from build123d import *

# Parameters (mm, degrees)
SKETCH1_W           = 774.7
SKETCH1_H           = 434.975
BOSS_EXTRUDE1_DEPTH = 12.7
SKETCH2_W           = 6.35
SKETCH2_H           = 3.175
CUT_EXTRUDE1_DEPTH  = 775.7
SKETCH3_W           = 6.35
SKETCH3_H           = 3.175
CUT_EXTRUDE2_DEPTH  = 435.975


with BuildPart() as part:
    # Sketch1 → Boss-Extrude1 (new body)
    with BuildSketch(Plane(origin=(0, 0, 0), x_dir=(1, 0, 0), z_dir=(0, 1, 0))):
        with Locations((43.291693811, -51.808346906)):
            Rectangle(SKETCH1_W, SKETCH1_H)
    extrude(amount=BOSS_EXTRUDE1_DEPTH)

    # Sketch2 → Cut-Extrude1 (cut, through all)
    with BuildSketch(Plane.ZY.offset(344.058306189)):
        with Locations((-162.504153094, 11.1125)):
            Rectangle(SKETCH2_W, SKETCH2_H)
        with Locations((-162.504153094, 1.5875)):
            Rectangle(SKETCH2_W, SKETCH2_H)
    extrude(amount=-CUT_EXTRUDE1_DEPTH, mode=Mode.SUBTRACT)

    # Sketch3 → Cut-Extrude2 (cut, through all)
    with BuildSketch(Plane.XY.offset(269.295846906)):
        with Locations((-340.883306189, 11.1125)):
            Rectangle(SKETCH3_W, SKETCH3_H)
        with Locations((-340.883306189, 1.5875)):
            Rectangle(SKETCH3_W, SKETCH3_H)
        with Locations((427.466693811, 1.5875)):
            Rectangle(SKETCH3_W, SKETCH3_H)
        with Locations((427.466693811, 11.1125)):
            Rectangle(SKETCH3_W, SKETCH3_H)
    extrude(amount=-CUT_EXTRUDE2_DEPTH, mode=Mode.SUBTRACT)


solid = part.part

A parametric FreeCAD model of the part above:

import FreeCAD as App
import Part
import Sketcher

V = App.Vector
Q = App.Units.Quantity

doc = App.newDocument("Part")
body = doc.addObject("PartDesign::Body", "Body")

# Sketch on XZ plane
sketch1 = doc.addObject("Sketcher::SketchObject", "Sketch")
body.addObject(sketch1)
sketch1.AttachmentSupport = (doc.XZ_Plane, [""])
sketch1.MapMode = "FlatFace"
sketch1.addGeometry([
    Part.LineSegment(V(-344, -166, 0), V(-344, 269, 0)),
    Part.LineSegment(V(-344, 269, 0), V(431, 269, 0)),
    Part.LineSegment(V(431, 269, 0), V(431, -166, 0)),
    Part.LineSegment(V(431, -166, 0), V(-344, -166, 0)),
], False)
sketch1.addConstraint([
    Sketcher.Constraint("Coincident", 0, 2, 1, 1),
    Sketcher.Constraint("Coincident", 1, 2, 2, 1),
    Sketcher.Constraint("Coincident", 2, 2, 3, 1),
    Sketcher.Constraint("Coincident", 3, 2, 0, 1),
    Sketcher.Constraint("Vertical", 0),
    Sketcher.Constraint("Horizontal", 1),
    Sketcher.Constraint("Vertical", 2),
    Sketcher.Constraint("Horizontal", 3),
    Sketcher.Constraint("DistanceX", 1, 1, 1, 2, Q("30.5 in")),
    Sketcher.Constraint("DistanceY", 0, 1, 0, 2, Q("17.125 in")),
    Sketcher.Constraint("DistanceX", 0, 2, -1, 1, 344.058306),
    Sketcher.Constraint("DistanceY", -1, 1, 0, 2, 269.295847),
])
pad1 = doc.addObject("PartDesign::Pad", "Pad")
body.addObject(pad1)
pad1.Profile = sketch1
pad1.Length = Q("0.5 in")
pad1.Reversed = True

# Sketch on YZ plane
sketch2 = doc.addObject("Sketcher::SketchObject", "Sketch001")
body.addObject(sketch2)
sketch2.AttachmentSupport = (doc.YZ_Plane, [""])
sketch2.MapMode = "FlatFace"
sketch2.AttachmentOffset = App.Placement(V(0, 0, -344.058306), App.Rotation())
sketch2.addGeometry([
    Part.LineSegment(V(12.7, -165.7, 0), V(9.5, -165.7, 0)),  # 0
    Part.LineSegment(V(9.5, -165.7, 0), V(9.5, -159.3, 0)),  # 1
    Part.LineSegment(V(9.5, -159.3, 0), V(12.7, -159.3, 0)),  # 2
    Part.LineSegment(V(12.7, -159.3, 0), V(12.7, -165.7, 0)),  # 3
    Part.LineSegment(V(3.2, -165.7, 0), V(0, -165.7, 0)),  # 4
    Part.LineSegment(V(0, -165.7, 0), V(0, -159.3, 0)),  # 5
    Part.LineSegment(V(0, -159.3, 0), V(3.2, -159.3, 0)),  # 6
    Part.LineSegment(V(3.2, -159.3, 0), V(3.2, -165.7, 0)),  # 7
], False)
sketch2.addConstraint([
    Sketcher.Constraint("Coincident", 0, 2, 1, 1),
    Sketcher.Constraint("Coincident", 1, 2, 2, 1),
    Sketcher.Constraint("Coincident", 2, 2, 3, 1),
    Sketcher.Constraint("Coincident", 3, 2, 0, 1),
    Sketcher.Constraint("Coincident", 4, 2, 5, 1),
    Sketcher.Constraint("Coincident", 5, 2, 6, 1),
    Sketcher.Constraint("Coincident", 6, 2, 7, 1),
    Sketcher.Constraint("Coincident", 7, 2, 4, 1),
    Sketcher.Constraint("Horizontal", 0),
    Sketcher.Constraint("Vertical", 1),
    Sketcher.Constraint("Horizontal", 2),
    Sketcher.Constraint("Vertical", 3),
    Sketcher.Constraint("Horizontal", 4),
    Sketcher.Constraint("Vertical", 5),
    Sketcher.Constraint("Horizontal", 6),
    Sketcher.Constraint("Vertical", 7),
    Sketcher.Constraint("PointOnObject", 4, 2, -2),
    Sketcher.Constraint("Horizontal", 3, 2, 4, 2),
    Sketcher.Constraint("Horizontal", 2, 2, 5, 2),
    Sketcher.Constraint("Equal", 2, 4),
    Sketcher.Constraint("DistanceY", 1, 1, 1, 2, Q("0.25 in")),
    Sketcher.Constraint("DistanceX", -1, 1, 2, 2, Q("0.5 in")),
    Sketcher.Constraint("DistanceX", 0, 2, 0, 1, Q("0.125 in")),
    Sketcher.Constraint("DistanceY", 0, 2, -1, 1, 165.679153),
])
pocket1 = doc.addObject("PartDesign::Pocket", "Pocket")
body.addObject(pocket1)
pocket1.Profile = sketch2
pocket1.Type = "ThroughAll"
pocket1.Reversed = True

# Sketch on XY plane
sketch3 = doc.addObject("Sketcher::SketchObject", "Sketch002")
body.addObject(sketch3)
sketch3.AttachmentSupport = (doc.XY_Plane, [""])
sketch3.MapMode = "FlatFace"
sketch3.AttachmentOffset = App.Placement(V(0, 0, 269.295847), App.Rotation())
sketch3.addGeometry([
    Part.LineSegment(V(-344.1, 12.7, 0), V(-344.1, 9.5, 0)),  # 0
    Part.LineSegment(V(-344.1, 9.5, 0), V(-337.7, 9.5, 0)),  # 1
    Part.LineSegment(V(-337.7, 9.5, 0), V(-337.7, 12.7, 0)),  # 2
    Part.LineSegment(V(-337.7, 12.7, 0), V(-344.1, 12.7, 0)),  # 3
    Part.LineSegment(V(-344.1, 3.2, 0), V(-344.1, 0, 0)),  # 4
    Part.LineSegment(V(-344.1, 0, 0), V(-337.7, 0, 0)),  # 5
    Part.LineSegment(V(-337.7, 0, 0), V(-337.7, 3.2, 0)),  # 6
    Part.LineSegment(V(-337.7, 3.2, 0), V(-344.1, 3.2, 0)),  # 7
    Part.LineSegment(V(424.3, 3.2, 0), V(424.3, 0, 0)),  # 8
    Part.LineSegment(V(424.3, 0, 0), V(430.6, 0, 0)),  # 9
    Part.LineSegment(V(430.6, 0, 0), V(430.6, 3.2, 0)),  # 10
    Part.LineSegment(V(430.6, 3.2, 0), V(424.3, 3.2, 0)),  # 11
    Part.LineSegment(V(424.3, 12.7, 0), V(424.3, 9.5, 0)),  # 12
    Part.LineSegment(V(424.3, 9.5, 0), V(430.6, 9.5, 0)),  # 13
    Part.LineSegment(V(430.6, 9.5, 0), V(430.6, 12.7, 0)),  # 14
    Part.LineSegment(V(430.6, 12.7, 0), V(424.3, 12.7, 0)),  # 15
], False)
sketch3.addConstraint([
    Sketcher.Constraint("Coincident", 0, 2, 1, 1),
    Sketcher.Constraint("Coincident", 1, 2, 2, 1),
    Sketcher.Constraint("Coincident", 2, 2, 3, 1),
    Sketcher.Constraint("Coincident", 3, 2, 0, 1),
    Sketcher.Constraint("Coincident", 4, 2, 5, 1),
    Sketcher.Constraint("Coincident", 5, 2, 6, 1),
    Sketcher.Constraint("Coincident", 6, 2, 7, 1),
    Sketcher.Constraint("Coincident", 7, 2, 4, 1),
    Sketcher.Constraint("Coincident", 8, 2, 9, 1),
    Sketcher.Constraint("Coincident", 9, 2, 10, 1),
    Sketcher.Constraint("Coincident", 10, 2, 11, 1),
    Sketcher.Constraint("Coincident", 11, 2, 8, 1),
    Sketcher.Constraint("Coincident", 12, 2, 13, 1),
    Sketcher.Constraint("Coincident", 13, 2, 14, 1),
    Sketcher.Constraint("Coincident", 14, 2, 15, 1),
    Sketcher.Constraint("Coincident", 15, 2, 12, 1),
    Sketcher.Constraint("Vertical", 0),
    Sketcher.Constraint("Horizontal", 1),
    Sketcher.Constraint("Vertical", 2),
    Sketcher.Constraint("Horizontal", 3),
    Sketcher.Constraint("Vertical", 4),
    Sketcher.Constraint("Horizontal", 5),
    Sketcher.Constraint("Vertical", 6),
    Sketcher.Constraint("Horizontal", 7),
    Sketcher.Constraint("Vertical", 8),
    Sketcher.Constraint("Horizontal", 9),
    Sketcher.Constraint("Vertical", 10),
    Sketcher.Constraint("Horizontal", 11),
    Sketcher.Constraint("Vertical", 12),
    Sketcher.Constraint("Horizontal", 13),
    Sketcher.Constraint("Vertical", 14),
    Sketcher.Constraint("Horizontal", 15),
    Sketcher.Constraint("PointOnObject", 4, 2, -1),
    Sketcher.Constraint("PointOnObject", 8, 2, -1),
    Sketcher.Constraint("Horizontal", 7, 2, 10, 2),
    Sketcher.Constraint("Horizontal", 1, 2, 12, 2),
    Sketcher.Constraint("Horizontal", 3, 2, 14, 2),
    Sketcher.Constraint("Vertical", 3, 2, 4, 2),
    Sketcher.Constraint("Vertical", 2, 2, 5, 2),
    Sketcher.Constraint("Vertical", 11, 2, 12, 2),
    Sketcher.Constraint("Vertical", 10, 2, 13, 2),
    Sketcher.Constraint("Equal", 7, 9),
    Sketcher.Constraint("Equal", 2, 4),
    Sketcher.Constraint("DistanceX", 5, 2, 8, 2, Q("30 in")),
    Sketcher.Constraint("DistanceX", 1, 1, 1, 2, Q("0.25 in")),
    Sketcher.Constraint("DistanceY", -1, 1, 2, 2, Q("0.5 in")),
    Sketcher.Constraint("DistanceY", 0, 2, 0, 1, Q("0.125 in")),
    Sketcher.Constraint("DistanceX", 0, 2, -1, 1, 344.058306),
])
pocket2 = doc.addObject("PartDesign::Pocket", "Pocket001")
body.addObject(pocket2)
pocket2.Profile = sketch3
pocket2.Type = "ThroughAll"

doc.recompute()
